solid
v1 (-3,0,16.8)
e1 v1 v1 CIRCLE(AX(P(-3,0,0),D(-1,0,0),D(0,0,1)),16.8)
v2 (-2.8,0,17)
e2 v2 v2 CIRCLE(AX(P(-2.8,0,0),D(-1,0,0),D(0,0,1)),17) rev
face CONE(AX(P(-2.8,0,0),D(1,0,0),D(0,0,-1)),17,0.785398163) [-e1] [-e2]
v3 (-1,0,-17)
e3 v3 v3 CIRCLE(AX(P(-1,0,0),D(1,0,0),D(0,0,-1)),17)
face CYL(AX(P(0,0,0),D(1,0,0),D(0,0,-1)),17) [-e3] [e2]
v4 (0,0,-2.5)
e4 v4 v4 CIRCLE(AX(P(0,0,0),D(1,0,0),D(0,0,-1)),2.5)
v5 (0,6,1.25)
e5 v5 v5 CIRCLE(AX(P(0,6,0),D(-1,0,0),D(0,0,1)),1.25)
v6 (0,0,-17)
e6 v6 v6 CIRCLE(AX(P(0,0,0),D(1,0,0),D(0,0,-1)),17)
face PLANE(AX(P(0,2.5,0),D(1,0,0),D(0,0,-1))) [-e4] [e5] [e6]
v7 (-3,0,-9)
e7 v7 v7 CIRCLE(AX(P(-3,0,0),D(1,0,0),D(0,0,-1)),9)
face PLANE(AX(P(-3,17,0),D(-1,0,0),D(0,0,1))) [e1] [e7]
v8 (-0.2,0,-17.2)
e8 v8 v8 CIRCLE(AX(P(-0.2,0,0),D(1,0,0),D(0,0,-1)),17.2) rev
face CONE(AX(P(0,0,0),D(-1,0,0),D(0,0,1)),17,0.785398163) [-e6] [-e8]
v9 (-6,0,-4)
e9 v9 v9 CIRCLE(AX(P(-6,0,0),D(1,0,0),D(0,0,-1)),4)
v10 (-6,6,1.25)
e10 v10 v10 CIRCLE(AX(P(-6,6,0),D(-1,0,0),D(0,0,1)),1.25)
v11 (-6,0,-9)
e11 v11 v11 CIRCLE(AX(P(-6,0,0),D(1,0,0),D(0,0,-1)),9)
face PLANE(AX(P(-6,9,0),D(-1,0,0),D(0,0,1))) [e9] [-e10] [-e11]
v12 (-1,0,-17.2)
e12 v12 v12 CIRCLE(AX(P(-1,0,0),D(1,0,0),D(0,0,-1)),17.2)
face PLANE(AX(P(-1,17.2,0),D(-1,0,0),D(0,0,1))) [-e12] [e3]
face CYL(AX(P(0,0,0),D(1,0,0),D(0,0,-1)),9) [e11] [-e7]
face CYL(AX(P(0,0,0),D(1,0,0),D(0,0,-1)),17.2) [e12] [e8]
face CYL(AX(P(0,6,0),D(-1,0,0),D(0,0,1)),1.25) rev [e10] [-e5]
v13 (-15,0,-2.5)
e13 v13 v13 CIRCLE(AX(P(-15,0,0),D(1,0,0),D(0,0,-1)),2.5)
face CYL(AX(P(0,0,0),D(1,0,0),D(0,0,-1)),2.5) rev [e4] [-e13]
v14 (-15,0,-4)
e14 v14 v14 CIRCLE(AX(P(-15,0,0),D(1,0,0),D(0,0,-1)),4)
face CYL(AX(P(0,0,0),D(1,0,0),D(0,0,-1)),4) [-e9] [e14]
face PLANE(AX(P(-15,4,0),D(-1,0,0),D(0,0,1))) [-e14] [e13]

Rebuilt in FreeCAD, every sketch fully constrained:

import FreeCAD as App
import Part
import Sketcher

V = App.Vector
Q = App.Units.Quantity


def edges_at(feature, points):
    """Names of the edges that pass closest to the given points."""
    edges = feature.Shape.Edges
    near = lambda p: min(range(len(edges)), key=lambda i: edges[i].distToShape(Part.Vertex(*p))[0])
    return sorted({f"Edge{near(p) + 1}" for p in points})


def add_polygon(sketch, points):
    """Adds a closed chain of lines whose ends are joined by coincident constraints."""
    first, n = sketch.GeometryCount, len(points)
    for a, b in zip(points, points[1:] + points[:1]):
        sketch.addGeometry(Part.LineSegment(App.Vector(*a, 0), App.Vector(*b, 0)), False)
    for i in range(n):
        sketch.addConstraint(Sketcher.Constraint("Coincident", first + i, 2, first + (i + 1) % n, 1))

doc = App.newDocument("Part")
body = doc.addObject("PartDesign::Body", "Body")

sketch1 = body.newObject("Sketcher::SketchObject", "Sketch")
sketch1.AttachmentSupport = (doc.getObject("XY_Plane"), [""])
sketch1.MapMode = "FlatFace"
add_polygon(sketch1, [(0, 2.5), (0, 17.2), (-1, 17.2), (-1, 17), (-3, 17), (-3, 9), (-6, 9), (-6, 4), (-15, 4), (-15, 2.5)])
sketch1.addConstraint([
    Sketcher.Constraint("Vertical", 0),
    Sketcher.Constraint("Horizontal", 1),
    Sketcher.Constraint("Vertical", 2),
    Sketcher.Constraint("Horizontal", 3),
    Sketcher.Constraint("Vertical", 4),
    Sketcher.Constraint("Horizontal", 5),
    Sketcher.Constraint("Vertical", 6),
    Sketcher.Constraint("Horizontal", 7),
    Sketcher.Constraint("Vertical", 8),
    Sketcher.Constraint("Horizontal", 9),
    Sketcher.Constraint("PointOnObject", 0, 2, -2),
    Sketcher.Constraint("DistanceX", 1, 2, 1, 1, Q("1 mm")),
    Sketcher.Constraint("DistanceX", 3, 2, 3, 1, Q("2 mm")),
    Sketcher.Constraint("DistanceX", 5, 2, 5, 1, Q("3 mm")),
    Sketcher.Constraint("DistanceX", 7, 2, 7, 1, Q("9 mm")),
    Sketcher.Constraint("DistanceY", 4, 2, 4, 1, Q("8 mm")),
    Sketcher.Constraint("DistanceY", 6, 2, 6, 1, Q("5 mm")),
    Sketcher.Constraint("DistanceY", 0, 1, 0, 2, Q("14.7 mm")),
    Sketcher.Constraint("DistanceY", 2, 2, 2, 1, Q("0.2 mm")),
    Sketcher.Constraint("DistanceY", -1, 1, 2, 2, Q("17 mm")),
])
revolution = body.newObject("PartDesign::Revolution", "Revolution")
revolution.Profile = sketch1
revolution.ReferenceAxis = (sketch1, ["H_Axis"])
revolution.Angle = 360

sketch2 = body.newObject("Sketcher::SketchObject", "Sketch001")
sketch2.AttachmentSupport = (doc.getObject("YZ_Plane"), [""])
sketch2.MapMode = "FlatFace"
sketch2.AttachmentOffset = App.Placement(V(0, 0, -6), App.Rotation())
sketch2.addGeometry(Part.Circle(V(6, 0, 0), V(0, 0, 1), 1.25), False)
sketch2.addConstraint([
    Sketcher.Constraint("PointOnObject", 0, 3, -1),
    Sketcher.Constraint("Diameter", 0, Q("2.5 mm")),
    Sketcher.Constraint("DistanceX", -1, 1, 0, 3, Q("6 mm")),
])
pocket1 = body.newObject("PartDesign::Pocket", "Pocket")
pocket1.Profile = sketch2
pocket1.Type = "ThroughAll"
pocket1.Reversed = True
doc.recompute()

chamfer = body.newObject("PartDesign::Chamfer", "Chamfer")
chamfer.Base = (pocket1, edges_at(pocket1, [(-3, 0, 17), (0, 0, 17.2)]))
chamfer.Size = 0.2

doc.recompute()
